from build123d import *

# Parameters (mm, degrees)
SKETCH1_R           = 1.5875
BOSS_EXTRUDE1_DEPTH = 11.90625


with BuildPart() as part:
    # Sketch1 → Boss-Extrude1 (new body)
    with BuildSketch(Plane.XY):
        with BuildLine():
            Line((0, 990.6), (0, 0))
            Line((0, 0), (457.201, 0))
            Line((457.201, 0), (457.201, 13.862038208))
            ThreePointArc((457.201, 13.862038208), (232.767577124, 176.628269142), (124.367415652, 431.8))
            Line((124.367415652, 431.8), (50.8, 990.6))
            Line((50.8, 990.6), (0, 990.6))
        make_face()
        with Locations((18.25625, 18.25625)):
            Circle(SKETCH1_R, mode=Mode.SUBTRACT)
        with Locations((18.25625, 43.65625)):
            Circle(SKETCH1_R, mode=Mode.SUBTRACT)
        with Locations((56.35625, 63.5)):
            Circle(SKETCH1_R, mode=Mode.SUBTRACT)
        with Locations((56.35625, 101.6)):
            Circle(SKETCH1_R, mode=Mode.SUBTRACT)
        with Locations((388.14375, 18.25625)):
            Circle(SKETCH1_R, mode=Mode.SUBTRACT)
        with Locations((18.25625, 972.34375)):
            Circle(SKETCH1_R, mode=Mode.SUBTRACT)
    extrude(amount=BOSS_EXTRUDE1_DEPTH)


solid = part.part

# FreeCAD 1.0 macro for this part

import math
import FreeCAD as App
import Part
import Sketcher
from FreeCAD import Vector
Q = App.Units.Quantity

doc = App.newDocument("Part")
body = doc.addObject("PartDesign::Body", "Body")

# Sketch on XY plane
sketch1 = body.newObject("Sketcher::SketchObject", "Sketch")
sketch1.AttachmentSupport = (doc.getObject("XY_Plane"), [""])
sketch1.MapMode = "FlatFace"
sketch1.addGeometry([
    Part.LineSegment(Vector(0, 990.6, 0), Vector(0, 0, 0)),  # 0
    Part.LineSegment(Vector(0, 0, 0), Vector(457.201, 0, 0)),  # 1
    Part.LineSegment(Vector(457.201, 0, 0), Vector(457.201, 13.862038, 0)),  # 2
    Part.ArcOfCircle(Part.Circle(Vector(638.116559, 499.436358, 0), Vector(0, 0, 1), 518.182265), math.radians(-172.5), math.radians(-110.434416)),  # 3
    Part.LineSegment(Vector(124.367416, 431.8, 0), Vector(50.8, 990.6, 0)),  # 4
    Part.LineSegment(Vector(50.8, 990.6, 0), Vector(0, 990.6, 0)),  # 5
    Part.Circle(Vector(18.25625, 18.25625, 0), Vector(0, 0, 1), 1.5875),  # 6
    Part.Circle(Vector(18.25625, 43.65625, 0), Vector(0, 0, 1), 1.5875),  # 7
    Part.Circle(Vector(56.35625, 63.5, 0), Vector(0, 0, 1), 1.5875),  # 8
    Part.Circle(Vector(56.35625, 101.6, 0), Vector(0, 0, 1), 1.5875),  # 9
    Part.Circle(Vector(388.14375, 18.25625, 0), Vector(0, 0, 1), 1.5875),  # 10
    Part.Circle(Vector(18.25625, 972.34375, 0), Vector(0, 0, 1), 1.5875),  # 11
], False)
sketch1.addConstraint([
    Sketcher.Constraint("Coincident", 0, 2, 1, 1),
    Sketcher.Constraint("Coincident", 1, 2, 2, 1),
    Sketcher.Constraint("Coincident", 2, 2, 3, 2),
    Sketcher.Constraint("Tangent", 3, 1, 4, 1),
    Sketcher.Constraint("Coincident", 4, 2, 5, 1),
    Sketcher.Constraint("Coincident", 5, 2, 0, 1),
    Sketcher.Constraint("Vertical", 0),
    Sketcher.Constraint("Horizontal", 1),
    Sketcher.Constraint("Vertical", 2),
    Sketcher.Constraint("Horizontal", 5),
    Sketcher.Constraint("Coincident", 0, 2, -1, 1),
    Sketcher.Constraint("Equal", 6, 7),
    Sketcher.Constraint("Equal", 7, 8),
    Sketcher.Constraint("Equal", 8, 9),
    Sketcher.Constraint("Equal", 9, 10),
    Sketcher.Constraint("Equal", 10, 11),
    Sketcher.Constraint("Horizontal", 6, 3, 10, 3),
    Sketcher.Constraint("Vertical", 6, 3, 7, 3),
    Sketcher.Constraint("Vertical", 8, 3, 9, 3),
    Sketcher.Constraint("Vertical", 7, 3, 11, 3),
    Sketcher.Constraint("DistanceX", 5, 2, 5, 1, Q("2 in")),
    Sketcher.Constraint("DistanceY", 0, 2, 0, 1, Q("39 in")),
    Sketcher.Constraint("Diameter", 6, Q("0.125 in")),
    Sketcher.Constraint("DistanceY", -1, 1, 9, 3, Q("4 in")),
    Sketcher.Constraint("DistanceY", 6, 3, 7, 3, Q("1 in")),
    Sketcher.Constraint("DistanceY", -1, 1, 8, 3, Q("2.5 in")),
    Sketcher.Constraint("Angle", 4, Q("97.5 deg")),
    Sketcher.Constraint("DistanceX", 7, 3, 8, 3, Q("1.5 in")),
    Sketcher.Constraint("DistanceX", -1, 1, 6, 3, Q("0.71875 in")),
    Sketcher.Constraint("DistanceY", -1, 1, 6, 3, Q("0.71875 in")),
    Sketcher.Constraint("DistanceX", -1, 1, 10, 3, Q("15.28125 in")),
    Sketcher.Constraint("DistanceY", -1, 1, 11, 3, Q("38.28125 in")),
    Sketcher.Constraint("DistanceX", 1, 1, 1, 2, 457.201),
    Sketcher.Constraint("Radius", 3, 518.182265),
    Sketcher.Constraint("DistanceY", 2, 1, 2, 2, 13.862038),
])
pad1 = body.newObject("PartDesign::Pad", "Pad")
pad1.Profile = sketch1
pad1.Length = Q("0.46875 in")

doc.recompute()
